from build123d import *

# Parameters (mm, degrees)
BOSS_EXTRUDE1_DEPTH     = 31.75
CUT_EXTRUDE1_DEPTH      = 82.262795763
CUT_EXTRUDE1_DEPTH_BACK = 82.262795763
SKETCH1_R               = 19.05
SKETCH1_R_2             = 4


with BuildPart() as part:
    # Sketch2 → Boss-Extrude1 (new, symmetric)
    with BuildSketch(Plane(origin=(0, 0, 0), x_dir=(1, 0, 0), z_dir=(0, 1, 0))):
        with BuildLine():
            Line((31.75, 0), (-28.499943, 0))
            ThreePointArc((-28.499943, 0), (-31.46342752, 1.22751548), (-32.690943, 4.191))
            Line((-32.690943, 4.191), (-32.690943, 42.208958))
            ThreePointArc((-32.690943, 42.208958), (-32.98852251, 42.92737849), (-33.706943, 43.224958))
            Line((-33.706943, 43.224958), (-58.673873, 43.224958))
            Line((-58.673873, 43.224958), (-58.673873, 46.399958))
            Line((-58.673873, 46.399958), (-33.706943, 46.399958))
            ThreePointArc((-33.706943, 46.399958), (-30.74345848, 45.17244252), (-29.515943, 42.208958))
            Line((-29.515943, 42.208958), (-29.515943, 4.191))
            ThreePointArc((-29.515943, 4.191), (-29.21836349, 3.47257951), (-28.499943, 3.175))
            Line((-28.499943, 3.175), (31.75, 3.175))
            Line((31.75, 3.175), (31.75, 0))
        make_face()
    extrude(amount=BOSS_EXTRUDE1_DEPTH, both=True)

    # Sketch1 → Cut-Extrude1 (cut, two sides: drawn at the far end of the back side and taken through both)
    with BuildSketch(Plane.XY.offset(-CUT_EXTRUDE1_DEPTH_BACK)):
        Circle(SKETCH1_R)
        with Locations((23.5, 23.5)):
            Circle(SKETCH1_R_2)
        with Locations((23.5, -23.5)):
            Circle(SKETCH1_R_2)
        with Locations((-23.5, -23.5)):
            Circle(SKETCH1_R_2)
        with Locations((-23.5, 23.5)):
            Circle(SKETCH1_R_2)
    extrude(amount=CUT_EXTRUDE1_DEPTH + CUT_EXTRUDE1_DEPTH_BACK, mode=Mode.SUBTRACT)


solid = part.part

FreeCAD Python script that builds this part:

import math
import FreeCAD as App
import Part
import Sketcher

V = App.Vector
Q = App.Units.Quantity

doc = App.newDocument("Part")
body = doc.addObject("PartDesign::Body", "Body")

# Sketch on XZ plane
sketch1 = body.newObject("Sketcher::SketchObject", "Sketch")
sketch1.AttachmentSupport = (doc.getObject("XZ_Plane"), [""])
sketch1.MapMode = "FlatFace"
sketch1.addGeometry([
    Part.LineSegment(V(-28.5, 0, 0), V(31.8, 0, 0)),  # 0
    Part.LineSegment(V(31.8, 0, 0), V(31.8, -3.2, 0)),  # 1
    Part.LineSegment(V(31.8, -3.2, 0), V(-28.5, -3.2, 0)),  # 2
    Part.ArcOfCircle(Part.Circle(V(-28.5, -4.2, 0), V(0, 0, 1), 1), math.radians(90), math.radians(180)),  # 3
    Part.LineSegment(V(-29.5, -4.2, 0), V(-29.5, -42.2, 0)),  # 4
    Part.ArcOfCircle(Part.Circle(V(-33.7, -42.2, 0), V(0, 0, 1), 4.2), math.radians(-90), math.radians(0)),  # 5
    Part.LineSegment(V(-33.7, -46.4, 0), V(-58.7, -46.4, 0)),  # 6
    Part.LineSegment(V(-58.7, -46.4, 0), V(-58.7, -43.2, 0)),  # 7
    Part.LineSegment(V(-58.7, -43.2, 0), V(-33.7, -43.2, 0)),  # 8
    Part.ArcOfCircle(Part.Circle(V(-33.7, -42.2, 0), V(0, 0, 1), 1), math.radians(-90), math.radians(0)),  # 9
    Part.LineSegment(V(-32.7, -42.2, 0), V(-32.7, -4.2, 0)),  # 10
    Part.ArcOfCircle(Part.Circle(V(-28.5, -4.2, 0), V(0, 0, 1), 4.2), math.radians(90), math.radians(180)),  # 11
], False)
sketch1.addConstraint([
    Sketcher.Constraint("Coincident", 0, 2, 1, 1),
    Sketcher.Constraint("Coincident", 1, 2, 2, 1),
    Sketcher.Constraint("Tangent", 2, 2, 3, 1),
    Sketcher.Constraint("Tangent", 3, 2, 4, 1),
    Sketcher.Constraint("Tangent", 4, 2, 5, 2),
    Sketcher.Constraint("Tangent", 5, 1, 6, 1),
    Sketcher.Constraint("Coincident", 6, 2, 7, 1),
    Sketcher.Constraint("Coincident", 7, 2, 8, 1),
    Sketcher.Constraint("Tangent", 8, 2, 9, 1),
    Sketcher.Constraint("Tangent", 9, 2, 10, 1),
    Sketcher.Constraint("Tangent", 10, 2, 11, 2),
    Sketcher.Constraint("Tangent", 11, 1, 0, 1),
    Sketcher.Constraint("Horizontal", 0),
    Sketcher.Constraint("Vertical", 1),
    Sketcher.Constraint("Horizontal", 2),
    Sketcher.Constraint("Vertical", 4),
    Sketcher.Constraint("Horizontal", 6),
    Sketcher.Constraint("Vertical", 7),
    Sketcher.Constraint("Horizontal", 8),
    Sketcher.Constraint("Vertical", 10),
    Sketcher.Constraint("Coincident", 9, 3, 5, 3),
    Sketcher.Constraint("Coincident", 11, 3, 3, 3),
    Sketcher.Constraint("Equal", 3, 9),
    Sketcher.Constraint("PointOnObject", 0, 2, -1),
    Sketcher.Constraint("Radius", 3, Q("0.04 in")),
    Sketcher.Constraint("Radius", 5, Q("0.165 in")),
    Sketcher.Constraint("DistanceX", -1, 1, 0, 2, Q("1.25 in")),
    Sketcher.Constraint("DistanceX", 6, 2, 6, 1, Q("24.96693 mm")),
    Sketcher.Constraint("DistanceX", 0, 1, 0, 2, Q("60.249943 mm")),
    Sketcher.Constraint("DistanceY", 4, 2, 4, 1, Q("38.017958 mm")),
])
pad1 = body.newObject("PartDesign::Pad", "Pad")
pad1.Profile = sketch1
pad1.Length = Q("2.5 in")
pad1.Midplane = True

# Sketch on XY plane
sketch2 = body.newObject("Sketcher::SketchObject", "Sketch001")
sketch2.AttachmentSupport = (doc.getObject("XY_Plane"), [""])
sketch2.MapMode = "FlatFace"
sketch2.addGeometry([
    Part.Circle(V(0, 0, 0), V(0, 0, 1), 19.1),  # 0
    Part.Circle(V(23.5, 23.5, 0), V(0, 0, 1), 4),  # 1
    Part.Circle(V(23.5, -23.5, 0), V(0, 0, 1), 4),  # 2
    Part.Circle(V(-23.5, -23.5, 0), V(0, 0, 1), 4),  # 3
    Part.Circle(V(-23.5, 23.5, 0), V(0, 0, 1), 4),  # 4
], False)
sketch2.addConstraint([
    Sketcher.Constraint("Coincident", 0, 3, -1, 1),
    Sketcher.Constraint("Equal", 1, 2),
    Sketcher.Constraint("Equal", 2, 3),
    Sketcher.Constraint("Equal", 3, 4),
    Sketcher.Constraint("Symmetric", 1, 3, 3, 3, -1, 1),
    Sketcher.Constraint("Symmetric", 2, 3, 4, 3, -1, 1),
    Sketcher.Constraint("Symmetric", 2, 3, 3, 3, -2),
    Sketcher.Constraint("Diameter", 0, Q("1.5 in")),
    Sketcher.Constraint("Diameter", 1, Q("8 mm")),
    Sketcher.Constraint("DistanceX", -1, 1, 1, 3, Q("23.5 mm")),
    Sketcher.Constraint("DistanceY", -1, 1, 1, 3, Q("23.5 mm")),
])
pocket1 = body.newObject("PartDesign::Pocket", "Pocket")
pocket1.Profile = sketch2
pocket1.Type = "ThroughAll"
pocket1.Midplane = True

doc.recompute()
